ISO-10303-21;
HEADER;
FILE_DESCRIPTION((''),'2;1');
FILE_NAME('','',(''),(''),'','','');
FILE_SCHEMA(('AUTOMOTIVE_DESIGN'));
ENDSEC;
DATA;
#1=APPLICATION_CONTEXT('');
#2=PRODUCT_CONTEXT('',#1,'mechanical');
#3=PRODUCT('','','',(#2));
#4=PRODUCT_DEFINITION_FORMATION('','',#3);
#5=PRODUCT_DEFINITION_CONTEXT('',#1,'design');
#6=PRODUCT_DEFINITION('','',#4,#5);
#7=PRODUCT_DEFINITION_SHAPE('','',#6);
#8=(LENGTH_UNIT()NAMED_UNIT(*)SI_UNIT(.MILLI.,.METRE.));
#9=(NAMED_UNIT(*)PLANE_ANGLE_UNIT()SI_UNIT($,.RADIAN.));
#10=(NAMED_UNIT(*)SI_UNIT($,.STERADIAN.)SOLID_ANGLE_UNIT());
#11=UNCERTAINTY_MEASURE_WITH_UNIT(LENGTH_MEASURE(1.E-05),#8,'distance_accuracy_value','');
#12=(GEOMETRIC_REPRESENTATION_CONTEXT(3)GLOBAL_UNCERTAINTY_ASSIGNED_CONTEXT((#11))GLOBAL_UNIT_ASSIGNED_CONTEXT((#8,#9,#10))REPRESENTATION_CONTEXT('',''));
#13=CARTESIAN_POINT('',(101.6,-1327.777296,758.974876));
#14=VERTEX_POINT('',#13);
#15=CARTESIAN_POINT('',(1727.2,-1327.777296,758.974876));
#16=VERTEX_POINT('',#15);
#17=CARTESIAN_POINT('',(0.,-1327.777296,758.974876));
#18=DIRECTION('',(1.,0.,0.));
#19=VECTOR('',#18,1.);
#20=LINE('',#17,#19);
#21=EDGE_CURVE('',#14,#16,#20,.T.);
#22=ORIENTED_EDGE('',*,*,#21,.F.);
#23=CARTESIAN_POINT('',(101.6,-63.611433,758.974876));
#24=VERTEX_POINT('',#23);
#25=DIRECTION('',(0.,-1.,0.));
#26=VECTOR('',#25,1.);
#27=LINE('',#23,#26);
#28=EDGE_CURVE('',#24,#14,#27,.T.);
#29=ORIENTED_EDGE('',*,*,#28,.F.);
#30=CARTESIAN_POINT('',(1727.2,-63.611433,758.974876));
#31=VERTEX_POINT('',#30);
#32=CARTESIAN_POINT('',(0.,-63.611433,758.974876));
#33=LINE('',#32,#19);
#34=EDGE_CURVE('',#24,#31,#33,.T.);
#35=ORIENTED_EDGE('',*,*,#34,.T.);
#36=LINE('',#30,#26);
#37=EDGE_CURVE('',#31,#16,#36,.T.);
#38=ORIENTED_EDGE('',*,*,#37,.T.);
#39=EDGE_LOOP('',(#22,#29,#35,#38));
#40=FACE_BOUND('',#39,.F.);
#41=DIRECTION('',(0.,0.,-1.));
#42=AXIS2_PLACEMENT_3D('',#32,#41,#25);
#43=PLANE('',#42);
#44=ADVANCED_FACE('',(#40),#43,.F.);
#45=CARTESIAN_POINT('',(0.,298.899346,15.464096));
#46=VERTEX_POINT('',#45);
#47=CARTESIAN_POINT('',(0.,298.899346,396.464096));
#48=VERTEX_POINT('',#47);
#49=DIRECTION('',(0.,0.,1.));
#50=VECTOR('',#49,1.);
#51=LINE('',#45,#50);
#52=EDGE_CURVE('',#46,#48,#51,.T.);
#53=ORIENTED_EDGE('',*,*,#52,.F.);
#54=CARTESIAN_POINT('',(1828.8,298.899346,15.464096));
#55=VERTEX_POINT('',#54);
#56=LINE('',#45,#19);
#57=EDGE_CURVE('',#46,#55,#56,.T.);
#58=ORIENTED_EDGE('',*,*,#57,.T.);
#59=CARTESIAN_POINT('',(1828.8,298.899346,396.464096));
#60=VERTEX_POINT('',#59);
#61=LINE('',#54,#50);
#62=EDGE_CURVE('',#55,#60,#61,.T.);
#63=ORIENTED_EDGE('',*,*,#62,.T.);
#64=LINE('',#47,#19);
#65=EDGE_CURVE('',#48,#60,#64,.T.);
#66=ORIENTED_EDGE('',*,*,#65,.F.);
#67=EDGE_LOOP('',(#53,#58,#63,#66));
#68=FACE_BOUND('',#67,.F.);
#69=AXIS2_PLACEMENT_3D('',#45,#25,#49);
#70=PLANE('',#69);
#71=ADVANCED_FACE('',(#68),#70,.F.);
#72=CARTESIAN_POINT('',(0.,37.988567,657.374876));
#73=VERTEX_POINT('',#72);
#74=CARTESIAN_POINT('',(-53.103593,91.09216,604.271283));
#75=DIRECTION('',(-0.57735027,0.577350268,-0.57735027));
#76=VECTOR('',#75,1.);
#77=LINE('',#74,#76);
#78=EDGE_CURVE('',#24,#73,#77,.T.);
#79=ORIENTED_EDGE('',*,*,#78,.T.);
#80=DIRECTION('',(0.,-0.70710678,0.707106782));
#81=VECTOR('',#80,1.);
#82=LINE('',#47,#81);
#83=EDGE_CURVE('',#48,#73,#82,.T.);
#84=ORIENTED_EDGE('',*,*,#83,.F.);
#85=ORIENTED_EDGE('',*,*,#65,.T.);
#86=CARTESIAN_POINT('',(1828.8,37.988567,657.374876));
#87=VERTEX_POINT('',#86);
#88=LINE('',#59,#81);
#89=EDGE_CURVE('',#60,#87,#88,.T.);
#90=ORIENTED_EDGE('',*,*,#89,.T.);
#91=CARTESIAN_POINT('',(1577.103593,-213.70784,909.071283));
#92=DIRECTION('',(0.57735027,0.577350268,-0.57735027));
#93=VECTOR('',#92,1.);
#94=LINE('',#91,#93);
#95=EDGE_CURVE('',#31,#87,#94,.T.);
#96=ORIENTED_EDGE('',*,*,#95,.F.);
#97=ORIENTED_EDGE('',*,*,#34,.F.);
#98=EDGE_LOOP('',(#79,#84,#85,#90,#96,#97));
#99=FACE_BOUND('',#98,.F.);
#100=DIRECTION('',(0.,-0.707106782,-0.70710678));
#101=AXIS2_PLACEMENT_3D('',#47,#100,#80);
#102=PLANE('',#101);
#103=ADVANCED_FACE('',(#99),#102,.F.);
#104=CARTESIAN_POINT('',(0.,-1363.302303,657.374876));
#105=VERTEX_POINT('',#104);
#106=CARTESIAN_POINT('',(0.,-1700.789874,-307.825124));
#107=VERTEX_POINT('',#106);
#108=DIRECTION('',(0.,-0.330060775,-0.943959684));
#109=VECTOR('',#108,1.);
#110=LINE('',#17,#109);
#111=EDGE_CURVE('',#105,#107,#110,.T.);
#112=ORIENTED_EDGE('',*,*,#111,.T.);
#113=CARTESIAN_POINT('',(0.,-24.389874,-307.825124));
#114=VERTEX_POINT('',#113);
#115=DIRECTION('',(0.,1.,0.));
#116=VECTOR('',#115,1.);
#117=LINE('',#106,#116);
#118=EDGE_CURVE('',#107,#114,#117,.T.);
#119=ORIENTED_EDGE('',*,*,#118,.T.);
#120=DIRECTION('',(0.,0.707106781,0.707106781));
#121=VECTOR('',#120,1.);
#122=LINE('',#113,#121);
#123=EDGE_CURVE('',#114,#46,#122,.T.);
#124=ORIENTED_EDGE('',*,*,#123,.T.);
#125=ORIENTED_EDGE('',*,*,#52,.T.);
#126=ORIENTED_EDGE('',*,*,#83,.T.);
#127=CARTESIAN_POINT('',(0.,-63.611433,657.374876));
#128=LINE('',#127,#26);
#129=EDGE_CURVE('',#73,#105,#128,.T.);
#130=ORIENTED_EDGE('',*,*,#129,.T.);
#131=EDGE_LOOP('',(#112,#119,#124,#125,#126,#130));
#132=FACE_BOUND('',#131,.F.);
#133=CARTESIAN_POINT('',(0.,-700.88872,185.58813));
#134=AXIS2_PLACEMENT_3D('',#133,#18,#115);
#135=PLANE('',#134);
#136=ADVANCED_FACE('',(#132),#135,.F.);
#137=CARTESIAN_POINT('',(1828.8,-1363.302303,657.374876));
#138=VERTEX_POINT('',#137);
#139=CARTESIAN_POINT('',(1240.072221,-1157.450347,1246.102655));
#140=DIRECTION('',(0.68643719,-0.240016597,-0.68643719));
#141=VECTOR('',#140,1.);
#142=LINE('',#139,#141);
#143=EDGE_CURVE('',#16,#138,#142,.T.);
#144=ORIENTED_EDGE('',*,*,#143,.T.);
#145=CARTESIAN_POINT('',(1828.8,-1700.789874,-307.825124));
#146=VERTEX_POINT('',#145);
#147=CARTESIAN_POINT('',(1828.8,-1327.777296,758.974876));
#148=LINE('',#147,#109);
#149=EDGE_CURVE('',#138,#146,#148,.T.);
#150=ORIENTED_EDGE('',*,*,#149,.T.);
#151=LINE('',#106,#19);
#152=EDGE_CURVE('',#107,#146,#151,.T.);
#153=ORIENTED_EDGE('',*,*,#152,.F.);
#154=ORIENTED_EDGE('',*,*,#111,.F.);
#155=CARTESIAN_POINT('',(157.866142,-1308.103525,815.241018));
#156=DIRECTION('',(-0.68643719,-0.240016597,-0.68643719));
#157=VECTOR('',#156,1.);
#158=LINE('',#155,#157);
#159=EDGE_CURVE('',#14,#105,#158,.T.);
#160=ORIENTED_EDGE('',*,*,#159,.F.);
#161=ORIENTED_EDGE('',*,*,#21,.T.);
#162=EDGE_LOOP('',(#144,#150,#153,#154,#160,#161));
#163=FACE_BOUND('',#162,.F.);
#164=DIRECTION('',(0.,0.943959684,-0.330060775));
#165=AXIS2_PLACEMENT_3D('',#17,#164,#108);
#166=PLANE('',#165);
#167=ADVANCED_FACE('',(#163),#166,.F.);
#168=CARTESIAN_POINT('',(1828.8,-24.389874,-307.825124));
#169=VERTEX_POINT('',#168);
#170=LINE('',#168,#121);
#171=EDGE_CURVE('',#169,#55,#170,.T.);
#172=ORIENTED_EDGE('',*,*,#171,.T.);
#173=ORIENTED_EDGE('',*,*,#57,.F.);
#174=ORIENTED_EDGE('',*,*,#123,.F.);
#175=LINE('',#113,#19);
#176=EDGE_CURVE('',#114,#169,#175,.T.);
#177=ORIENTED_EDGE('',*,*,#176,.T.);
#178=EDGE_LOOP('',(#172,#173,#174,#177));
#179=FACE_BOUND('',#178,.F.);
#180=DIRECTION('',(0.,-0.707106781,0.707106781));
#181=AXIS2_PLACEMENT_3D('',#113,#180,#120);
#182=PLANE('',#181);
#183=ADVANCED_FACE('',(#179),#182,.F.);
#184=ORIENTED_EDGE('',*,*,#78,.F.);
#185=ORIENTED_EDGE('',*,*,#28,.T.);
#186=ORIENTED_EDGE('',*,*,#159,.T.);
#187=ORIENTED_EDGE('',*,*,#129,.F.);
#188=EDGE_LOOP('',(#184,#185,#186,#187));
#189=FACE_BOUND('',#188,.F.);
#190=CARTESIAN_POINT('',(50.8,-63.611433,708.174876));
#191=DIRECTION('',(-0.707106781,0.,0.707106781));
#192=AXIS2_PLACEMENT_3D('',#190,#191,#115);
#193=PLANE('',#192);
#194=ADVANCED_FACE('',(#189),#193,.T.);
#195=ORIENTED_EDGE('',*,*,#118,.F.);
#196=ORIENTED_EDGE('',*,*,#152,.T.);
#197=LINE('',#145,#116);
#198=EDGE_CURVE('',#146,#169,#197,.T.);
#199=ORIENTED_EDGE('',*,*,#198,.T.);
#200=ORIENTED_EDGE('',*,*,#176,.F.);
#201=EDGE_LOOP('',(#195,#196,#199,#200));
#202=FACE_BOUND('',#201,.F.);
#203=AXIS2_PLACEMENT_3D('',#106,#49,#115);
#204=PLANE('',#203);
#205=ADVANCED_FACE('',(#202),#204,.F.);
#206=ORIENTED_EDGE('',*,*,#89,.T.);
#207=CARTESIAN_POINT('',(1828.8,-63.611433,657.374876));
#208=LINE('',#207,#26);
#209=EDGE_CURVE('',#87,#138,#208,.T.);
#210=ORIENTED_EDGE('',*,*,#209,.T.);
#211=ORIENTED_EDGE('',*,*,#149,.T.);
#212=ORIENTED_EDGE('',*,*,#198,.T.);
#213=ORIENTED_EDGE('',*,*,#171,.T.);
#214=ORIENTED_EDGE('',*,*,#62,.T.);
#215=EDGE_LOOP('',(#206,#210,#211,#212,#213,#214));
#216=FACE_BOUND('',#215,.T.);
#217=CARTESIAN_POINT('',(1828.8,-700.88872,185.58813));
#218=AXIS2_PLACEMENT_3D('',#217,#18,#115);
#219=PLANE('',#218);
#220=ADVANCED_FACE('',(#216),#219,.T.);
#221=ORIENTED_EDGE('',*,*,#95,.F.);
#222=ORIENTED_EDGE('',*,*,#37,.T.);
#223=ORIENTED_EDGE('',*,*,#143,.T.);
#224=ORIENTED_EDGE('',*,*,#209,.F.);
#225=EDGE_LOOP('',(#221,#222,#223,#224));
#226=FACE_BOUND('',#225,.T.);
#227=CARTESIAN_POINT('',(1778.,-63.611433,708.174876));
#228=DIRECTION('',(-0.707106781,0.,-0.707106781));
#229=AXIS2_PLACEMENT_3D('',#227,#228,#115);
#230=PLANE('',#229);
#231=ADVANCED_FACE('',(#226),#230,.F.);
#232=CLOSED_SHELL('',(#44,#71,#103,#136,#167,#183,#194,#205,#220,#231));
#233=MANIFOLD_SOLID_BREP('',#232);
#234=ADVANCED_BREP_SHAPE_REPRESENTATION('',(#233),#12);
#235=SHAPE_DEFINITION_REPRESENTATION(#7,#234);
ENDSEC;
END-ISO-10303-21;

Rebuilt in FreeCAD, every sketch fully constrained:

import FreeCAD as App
import Part
import Sketcher
Q = App.Units.Quantity


def edges_at(feature, points):
    """Names of the edges that pass closest to the given points."""
    edges = feature.Shape.Edges
    near = lambda p: min(range(len(edges)), key=lambda i: edges[i].distToShape(Part.Vertex(*p))[0])
    return sorted({f"Edge{near(p) + 1}" for p in points})

doc = App.newDocument("Part")
body = doc.addObject("PartDesign::Body", "Body")

sketch1 = doc.addObject("Sketcher::SketchObject", "Sketch")
body.addObject(sketch1)
sketch1.AttachmentSupport = (doc.YZ_Plane, [""])
sketch1.MapMode = "FlatFace"
sketch1.addGeometry(Part.LineSegment(App.Vector(-1328, 759, 0), App.Vector(-1701, -308, 0)), False)
sketch1.addGeometry(Part.LineSegment(App.Vector(-1701, -308, 0), App.Vector(-24, -308, 0)), False)
sketch1.addGeometry(Part.LineSegment(App.Vector(-24, -308, 0), App.Vector(299, 15, 0)), False)
sketch1.addGeometry(Part.LineSegment(App.Vector(299, 15, 0), App.Vector(299, 396, 0)), False)
sketch1.addGeometry(Part.LineSegment(App.Vector(299, 396, 0), App.Vector(-64, 759, 0)), False)
sketch1.addGeometry(Part.LineSegment(App.Vector(-64, 759, 0), App.Vector(-1328, 759, 0)), False)
sketch1.addConstraint(Sketcher.Constraint("Coincident", 0, 2, 1, 1))
sketch1.addConstraint(Sketcher.Constraint("Coincident", 1, 2, 2, 1))
sketch1.addConstraint(Sketcher.Constraint("Coincident", 2, 2, 3, 1))
sketch1.addConstraint(Sketcher.Constraint("Coincident", 3, 2, 4, 1))
sketch1.addConstraint(Sketcher.Constraint("Coincident", 4, 2, 5, 1))
sketch1.addConstraint(Sketcher.Constraint("Coincident", 5, 2, 0, 1))
sketch1.addConstraint(Sketcher.Constraint("Horizontal", 1))
sketch1.addConstraint(Sketcher.Constraint("Vertical", 3))
sketch1.addConstraint(Sketcher.Constraint("Horizontal", 5))
sketch1.addConstraint(Sketcher.Constraint("Perpendicular", 2, 4))
sketch1.addConstraint(Sketcher.Constraint("DistanceX", 1, 1, 1, 2, Q("66 in")))
sketch1.addConstraint(Sketcher.Constraint("DistanceY", 3, 1, 3, 2, Q("15 in")))
sketch1.addConstraint(Sketcher.Constraint("Distance", 2, Q("18 in")))
sketch1.addConstraint(Sketcher.Constraint("Angle", 2, Q("45 deg")))
sketch1.addConstraint(Sketcher.Constraint("DistanceY", 1, 2, 4, 2, Q("42 in")))
sketch1.addConstraint(Sketcher.Constraint("Distance", 0, Q("1130.133011 mm")))
sketch1.addConstraint(Sketcher.Constraint("DistanceX", 0, 2, -1, 1, Q("1700.789874 mm")))
sketch1.addConstraint(Sketcher.Constraint("DistanceY", 0, 2, -1, 1, Q("307.825124 mm")))
pad1 = doc.addObject("PartDesign::Pad", "Pad")
body.addObject(pad1)
pad1.Profile = sketch1
pad1.Length = Q("72 in")
doc.recompute()

chamfer = doc.addObject("PartDesign::Chamfer", "Chamfer")
body.addObject(chamfer)
chamfer.Base = (pad1, edges_at(pad1, [(1828.8, -695.694, 758.975)]))
chamfer.Size = Q("4 in")
doc.recompute()

chamfer2 = doc.addObject("PartDesign::Chamfer", "Chamfer001")
body.addObject(chamfer2)
chamfer2.Base = (chamfer, edges_at(chamfer, [(0, -695.694, 758.975)]))
chamfer2.Size = Q("4 in")

doc.recompute()
